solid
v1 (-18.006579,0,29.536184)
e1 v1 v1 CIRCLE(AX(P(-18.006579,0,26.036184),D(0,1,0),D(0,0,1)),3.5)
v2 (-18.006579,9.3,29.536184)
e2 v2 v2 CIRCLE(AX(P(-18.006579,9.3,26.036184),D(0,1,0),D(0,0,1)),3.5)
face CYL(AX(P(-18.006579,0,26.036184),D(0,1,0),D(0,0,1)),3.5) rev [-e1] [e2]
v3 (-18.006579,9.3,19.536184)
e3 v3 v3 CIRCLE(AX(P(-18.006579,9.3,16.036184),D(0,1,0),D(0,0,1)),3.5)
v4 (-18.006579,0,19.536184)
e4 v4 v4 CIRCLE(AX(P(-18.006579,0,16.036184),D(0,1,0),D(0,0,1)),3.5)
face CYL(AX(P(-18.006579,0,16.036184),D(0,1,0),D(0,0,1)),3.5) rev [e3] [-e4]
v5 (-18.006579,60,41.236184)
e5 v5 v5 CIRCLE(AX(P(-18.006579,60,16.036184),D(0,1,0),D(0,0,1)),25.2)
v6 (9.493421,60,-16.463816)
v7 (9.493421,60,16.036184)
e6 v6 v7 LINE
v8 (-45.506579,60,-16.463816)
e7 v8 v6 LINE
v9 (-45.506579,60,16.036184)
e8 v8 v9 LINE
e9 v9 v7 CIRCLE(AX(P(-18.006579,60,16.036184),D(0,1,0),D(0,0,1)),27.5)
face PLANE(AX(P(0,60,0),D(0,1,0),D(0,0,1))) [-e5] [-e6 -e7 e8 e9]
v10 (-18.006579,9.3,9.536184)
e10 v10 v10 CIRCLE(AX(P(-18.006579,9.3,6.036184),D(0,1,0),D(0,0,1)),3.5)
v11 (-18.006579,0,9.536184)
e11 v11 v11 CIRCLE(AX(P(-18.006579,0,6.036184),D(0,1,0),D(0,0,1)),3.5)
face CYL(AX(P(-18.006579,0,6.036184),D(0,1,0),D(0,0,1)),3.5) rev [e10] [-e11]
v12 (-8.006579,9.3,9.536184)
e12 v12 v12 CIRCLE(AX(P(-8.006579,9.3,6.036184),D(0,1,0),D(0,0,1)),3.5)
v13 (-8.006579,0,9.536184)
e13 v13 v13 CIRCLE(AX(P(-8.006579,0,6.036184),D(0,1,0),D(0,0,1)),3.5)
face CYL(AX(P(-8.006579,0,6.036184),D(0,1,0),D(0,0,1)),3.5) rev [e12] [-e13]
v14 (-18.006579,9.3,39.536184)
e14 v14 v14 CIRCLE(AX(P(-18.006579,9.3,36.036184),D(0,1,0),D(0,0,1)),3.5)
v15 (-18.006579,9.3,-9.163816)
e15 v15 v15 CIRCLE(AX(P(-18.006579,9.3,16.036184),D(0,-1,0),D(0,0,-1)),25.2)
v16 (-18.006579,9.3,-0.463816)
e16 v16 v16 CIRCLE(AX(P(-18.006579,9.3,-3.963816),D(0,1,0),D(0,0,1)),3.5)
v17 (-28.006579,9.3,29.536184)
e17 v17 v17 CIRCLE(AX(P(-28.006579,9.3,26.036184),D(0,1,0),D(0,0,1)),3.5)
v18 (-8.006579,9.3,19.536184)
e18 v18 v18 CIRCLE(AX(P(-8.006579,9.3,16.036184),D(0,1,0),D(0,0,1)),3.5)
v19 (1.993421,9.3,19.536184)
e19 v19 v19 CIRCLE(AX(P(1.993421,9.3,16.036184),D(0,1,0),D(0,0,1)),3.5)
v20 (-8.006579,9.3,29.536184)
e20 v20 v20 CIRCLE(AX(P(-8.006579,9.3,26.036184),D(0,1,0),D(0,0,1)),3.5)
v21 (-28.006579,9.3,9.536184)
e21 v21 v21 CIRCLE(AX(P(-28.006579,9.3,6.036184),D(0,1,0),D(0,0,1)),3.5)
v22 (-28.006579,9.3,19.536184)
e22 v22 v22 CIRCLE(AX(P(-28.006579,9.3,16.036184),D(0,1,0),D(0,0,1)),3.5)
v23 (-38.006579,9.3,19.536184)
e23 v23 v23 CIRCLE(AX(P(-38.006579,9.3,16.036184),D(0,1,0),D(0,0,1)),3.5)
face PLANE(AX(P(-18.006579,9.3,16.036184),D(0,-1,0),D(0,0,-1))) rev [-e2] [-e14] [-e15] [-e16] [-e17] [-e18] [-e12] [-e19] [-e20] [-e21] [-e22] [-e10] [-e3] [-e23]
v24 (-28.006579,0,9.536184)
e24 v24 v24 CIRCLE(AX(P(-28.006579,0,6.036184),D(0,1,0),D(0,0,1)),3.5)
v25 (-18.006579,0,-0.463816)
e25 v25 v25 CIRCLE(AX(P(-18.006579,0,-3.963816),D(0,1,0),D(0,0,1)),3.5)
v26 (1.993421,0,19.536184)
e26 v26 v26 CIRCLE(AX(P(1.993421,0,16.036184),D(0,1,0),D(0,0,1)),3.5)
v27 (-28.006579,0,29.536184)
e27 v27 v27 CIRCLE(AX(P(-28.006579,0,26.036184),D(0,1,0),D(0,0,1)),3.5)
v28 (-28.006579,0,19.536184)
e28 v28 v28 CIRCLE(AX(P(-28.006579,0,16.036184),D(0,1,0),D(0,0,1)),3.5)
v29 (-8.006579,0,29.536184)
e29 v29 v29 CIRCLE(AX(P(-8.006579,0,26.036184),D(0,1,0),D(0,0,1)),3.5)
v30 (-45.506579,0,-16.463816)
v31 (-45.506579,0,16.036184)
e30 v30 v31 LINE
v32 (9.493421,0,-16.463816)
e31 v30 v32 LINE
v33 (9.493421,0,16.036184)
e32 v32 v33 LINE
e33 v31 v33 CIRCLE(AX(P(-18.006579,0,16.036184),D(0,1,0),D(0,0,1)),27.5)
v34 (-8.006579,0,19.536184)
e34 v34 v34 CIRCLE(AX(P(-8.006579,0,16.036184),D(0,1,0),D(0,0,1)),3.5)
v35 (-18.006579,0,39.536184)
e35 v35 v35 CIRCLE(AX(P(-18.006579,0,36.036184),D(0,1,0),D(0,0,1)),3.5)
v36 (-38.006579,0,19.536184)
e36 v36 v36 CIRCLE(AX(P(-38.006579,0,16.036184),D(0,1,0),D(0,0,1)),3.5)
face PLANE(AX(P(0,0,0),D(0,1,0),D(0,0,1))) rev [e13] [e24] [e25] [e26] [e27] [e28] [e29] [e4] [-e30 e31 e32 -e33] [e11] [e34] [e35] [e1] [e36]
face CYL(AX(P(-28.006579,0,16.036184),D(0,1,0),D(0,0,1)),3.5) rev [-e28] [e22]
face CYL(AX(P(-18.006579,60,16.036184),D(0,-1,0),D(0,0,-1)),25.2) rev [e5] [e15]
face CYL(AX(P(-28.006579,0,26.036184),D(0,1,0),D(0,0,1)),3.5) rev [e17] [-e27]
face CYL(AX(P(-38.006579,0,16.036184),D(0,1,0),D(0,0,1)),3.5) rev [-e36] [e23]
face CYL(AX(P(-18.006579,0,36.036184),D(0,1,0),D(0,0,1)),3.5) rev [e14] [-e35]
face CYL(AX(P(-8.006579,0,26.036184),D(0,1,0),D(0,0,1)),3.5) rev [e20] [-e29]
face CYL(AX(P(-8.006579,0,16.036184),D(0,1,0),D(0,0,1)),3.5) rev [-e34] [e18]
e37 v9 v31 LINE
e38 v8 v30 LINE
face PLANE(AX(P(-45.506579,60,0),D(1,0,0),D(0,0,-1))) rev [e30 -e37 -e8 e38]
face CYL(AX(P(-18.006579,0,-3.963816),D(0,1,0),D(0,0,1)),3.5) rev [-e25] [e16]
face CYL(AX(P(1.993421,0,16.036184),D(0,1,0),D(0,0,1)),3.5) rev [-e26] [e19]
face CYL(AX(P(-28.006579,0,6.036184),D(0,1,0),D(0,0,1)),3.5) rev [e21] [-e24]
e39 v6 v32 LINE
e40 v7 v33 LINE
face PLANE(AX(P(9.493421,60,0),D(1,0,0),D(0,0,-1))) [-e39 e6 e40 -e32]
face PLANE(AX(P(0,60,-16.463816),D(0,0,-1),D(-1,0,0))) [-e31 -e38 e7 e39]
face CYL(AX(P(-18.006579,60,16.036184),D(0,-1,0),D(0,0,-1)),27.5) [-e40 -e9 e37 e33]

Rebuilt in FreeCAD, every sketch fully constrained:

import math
import FreeCAD as App
import Part
import Sketcher

V = App.Vector

doc = App.newDocument("Part")
body = doc.addObject("PartDesign::Body", "Body")

sketch1 = body.newObject("Sketcher::SketchObject", "Sketch")
sketch1.AttachmentSupport = (doc.getObject("XZ_Plane"), [""])
sketch1.MapMode = "FlatFace"
sketch1.addGeometry(Part.LineSegment(V(9, -16, 0), V(-46, -16, 0)), False)
sketch1.addGeometry(Part.LineSegment(V(-46, -16, 0), V(-46, 16, 0)), False)
sketch1.addGeometry(Part.ArcOfCircle(Part.Circle(V(-18, 16, 0), V(0, 0, 1), 28), math.radians(0), math.radians(180)), False)
sketch1.addGeometry(Part.LineSegment(V(9, 16, 0), V(9, -16, 0)), False)
sketch1.addGeometry(Part.Circle(V(-18, 16, 0), V(0, 0, 1), 25), False)
sketch1.addConstraint(Sketcher.Constraint("Coincident", 0, 2, 1, 1))
sketch1.addConstraint(Sketcher.Constraint("Tangent", 1, 2, 2, 2))
sketch1.addConstraint(Sketcher.Constraint("Tangent", 2, 1, 3, 1))
sketch1.addConstraint(Sketcher.Constraint("Coincident", 3, 2, 0, 1))
sketch1.addConstraint(Sketcher.Constraint("Horizontal", 0))
sketch1.addConstraint(Sketcher.Constraint("Vertical", 1))
sketch1.addConstraint(Sketcher.Constraint("Vertical", 3))
sketch1.addConstraint(Sketcher.Constraint("Coincident", 4, 3, 2, 3))
sketch1.addConstraint(Sketcher.Constraint("Diameter", 4, 50.4))
sketch1.addConstraint(Sketcher.Constraint("Radius", 2, 27.5))
sketch1.addConstraint(Sketcher.Constraint("DistanceY", 1, 1, 1, 2, 32.5))
sketch1.addConstraint(Sketcher.Constraint("DistanceX", 2, 3, -1, 1, 18.006579))
sketch1.addConstraint(Sketcher.Constraint("DistanceY", -1, 1, 2, 3, 16.036184))
pad1 = body.newObject("PartDesign::Pad", "Pad")
pad1.Profile = sketch1
pad1.Length = 60
pad1.Reversed = True

sketch2 = body.newObject("Sketcher::SketchObject", "Sketch001")
sketch2.AttachmentSupport = (doc.getObject("XZ_Plane"), [""])
sketch2.MapMode = "FlatFace"
sketch2.addGeometry(Part.Circle(V(-18, 16, 0), V(0, 0, 1), 25), False)
sketch2.addConstraint(Sketcher.Constraint("Diameter", 0, 50.4))
sketch2.addConstraint(Sketcher.Constraint("DistanceX", 0, 3, -1, 1, 18.006579))
sketch2.addConstraint(Sketcher.Constraint("DistanceY", -1, 1, 0, 3, 16.036184))
pad2 = body.newObject("PartDesign::Pad", "Pad001")
pad2.Profile = sketch2
pad2.Length = 9.3
pad2.Reversed = True

sketch3 = body.newObject("Sketcher::SketchObject", "Sketch002")
sketch3.AttachmentSupport = (doc.getObject("XZ_Plane"), [""])
sketch3.MapMode = "FlatFace"
sketch3.AttachmentOffset = App.Placement(V(0, 0, -9.3), App.Rotation())
sketch3.addGeometry(Part.ArcOfCircle(Part.Circle(V(-18, -4, 0), V(0, 0, 1), 3.5), math.radians(90), math.radians(270)), False)
sketch3.addGeometry(Part.ArcOfCircle(Part.Circle(V(-18, -4, 0), V(0, 0, 1), 3.5), math.radians(0), math.radians(90)), False)
sketch3.addGeometry(Part.ArcOfCircle(Part.Circle(V(-18, -4, 0), V(0, 0, 1), 3.5), math.radians(-90), math.radians(0)), False)
sketch3.addGeometry(Part.ArcOfCircle(Part.Circle(V(-18, 6, 0), V(0, 0, 1), 3.5), math.radians(90), math.radians(270)), False)
sketch3.addGeometry(Part.ArcOfCircle(Part.Circle(V(-18, 6, 0), V(0, 0, 1), 3.5), math.radians(0), math.radians(90)), False)
sketch3.addGeometry(Part.ArcOfCircle(Part.Circle(V(-18, 6, 0), V(0, 0, 1), 3.5), math.radians(-90), math.radians(0)), False)
sketch3.addGeometry(Part.Circle(V(-28, 6, 0), V(0, 0, 1), 3.5), False)
sketch3.addGeometry(Part.Circle(V(-8, 6, 0), V(0, 0, 1), 3.5), False)
sketch3.addGeometry(Part.Circle(V(-8, 16, 0), V(0, 0, 1), 3.5), False)
sketch3.addGeometry(Part.Circle(V(2, 16, 0), V(0, 0, 1), 3.5), False)
sketch3.addGeometry(Part.ArcOfCircle(Part.Circle(V(-18, 16, 0), V(0, 0, 1), 3.5), math.radians(0), math.radians(90)), False)
sketch3.addGeometry(Part.ArcOfCircle(Part.Circle(V(-18, 16, 0), V(0, 0, 1), 3.5), math.radians(-90), math.radians(0)), False)
sketch3.addGeometry(Part.ArcOfCircle(Part.Circle(V(-18, 16, 0), V(0, 0, 1), 3.5), math.radians(180), math.radians(270)), False)
sketch3.addGeometry(Part.ArcOfCircle(Part.Circle(V(-18, 16, 0), V(0, 0, 1), 3.5), math.radians(90), math.radians(180)), False)
sketch3.addGeometry(Part.Circle(V(-38, 16, 0), V(0, 0, 1), 3.5), False)
sketch3.addGeometry(Part.Circle(V(-28, 26, 0), V(0, 0, 1), 3.5), False)
sketch3.addGeometry(Part.ArcOfCircle(Part.Circle(V(-18, 26, 0), V(0, 0, 1), 3.5), math.radians(90), math.radians(270)), False)
sketch3.addGeometry(Part.ArcOfCircle(Part.Circle(V(-18, 26, 0), V(0, 0, 1), 3.5), math.radians(0), math.radians(90)), False)
sketch3.addGeometry(Part.ArcOfCircle(Part.Circle(V(-18, 26, 0), V(0, 0, 1), 3.5), math.radians(-90), math.radians(0)), False)
sketch3.addGeometry(Part.Circle(V(-8, 26, 0), V(0, 0, 1), 3.5), False)
sketch3.addGeometry(Part.ArcOfCircle(Part.Circle(V(-18, 36, 0), V(0, 0, 1), 3.5), math.radians(90), math.radians(270)), False)
sketch3.addGeometry(Part.ArcOfCircle(Part.Circle(V(-18, 36, 0), V(0, 0, 1), 3.5), math.radians(0), math.radians(90)), False)
sketch3.addGeometry(Part.ArcOfCircle(Part.Circle(V(-18, 36, 0), V(0, 0, 1), 3.5), math.radians(-90), math.radians(0)), False)
sketch3.addGeometry(Part.Circle(V(-28, 16, 0), V(0, 0, 1), 3.5), False)
sketch3.addConstraint(Sketcher.Constraint("Tangent", 0, 1, 1, 2))
sketch3.addConstraint(Sketcher.Constraint("Tangent", 1, 1, 2, 2))
sketch3.addConstraint(Sketcher.Constraint("Tangent", 2, 1, 0, 2))
sketch3.addConstraint(Sketcher.Constraint("Tangent", 3, 1, 4, 2))
sketch3.addConstraint(Sketcher.Constraint("Tangent", 4, 1, 5, 2))
sketch3.addConstraint(Sketcher.Constraint("Tangent", 5, 1, 3, 2))
sketch3.addConstraint(Sketcher.Constraint("Tangent", 10, 1, 11, 2))
sketch3.addConstraint(Sketcher.Constraint("Tangent", 11, 1, 12, 2))
sketch3.addConstraint(Sketcher.Constraint("Tangent", 12, 1, 13, 2))
sketch3.addConstraint(Sketcher.Constraint("Tangent", 13, 1, 10, 2))
sketch3.addConstraint(Sketcher.Constraint("Tangent", 16, 1, 17, 2))
sketch3.addConstraint(Sketcher.Constraint("Tangent", 17, 1, 18, 2))
sketch3.addConstraint(Sketcher.Constraint("Tangent", 18, 1, 16, 2))
sketch3.addConstraint(Sketcher.Constraint("Tangent", 20, 1, 21, 2))
sketch3.addConstraint(Sketcher.Constraint("Tangent", 21, 1, 22, 2))
sketch3.addConstraint(Sketcher.Constraint("Tangent", 22, 1, 20, 2))
sketch3.addConstraint(Sketcher.Constraint("Equal", 2, 3))
sketch3.addConstraint(Sketcher.Constraint("Equal", 5, 6))
sketch3.addConstraint(Sketcher.Constraint("Equal", 6, 7))
sketch3.addConstraint(Sketcher.Constraint("Equal", 7, 8))
sketch3.addConstraint(Sketcher.Constraint("Equal", 8, 9))
sketch3.addConstraint(Sketcher.Constraint("Equal", 9, 10))
sketch3.addConstraint(Sketcher.Constraint("Equal", 10, 11))
sketch3.addConstraint(Sketcher.Constraint("Equal", 13, 14))
sketch3.addConstraint(Sketcher.Constraint("Equal", 14, 15))
sketch3.addConstraint(Sketcher.Constraint("Equal", 15, 16))
sketch3.addConstraint(Sketcher.Constraint("Equal", 18, 19))
sketch3.addConstraint(Sketcher.Constraint("Equal", 19, 20))
sketch3.addConstraint(Sketcher.Constraint("Equal", 22, 23))
sketch3.addConstraint(Sketcher.Constraint("Horizontal", 5, 3, 6, 3))
sketch3.addConstraint(Sketcher.Constraint("Horizontal", 6, 3, 7, 3))
sketch3.addConstraint(Sketcher.Constraint("Horizontal", 8, 3, 9, 3))
sketch3.addConstraint(Sketcher.Constraint("Horizontal", 9, 3, 10, 3))
sketch3.addConstraint(Sketcher.Constraint("Horizontal", 13, 3, 14, 3))
sketch3.addConstraint(Sketcher.Constraint("Horizontal", 15, 3, 16, 3))
sketch3.addConstraint(Sketcher.Constraint("Horizontal", 18, 3, 19, 3))
sketch3.addConstraint(Sketcher.Constraint("Horizontal", 14, 3, 23, 3))
sketch3.addConstraint(Sketcher.Constraint("Horizontal", 2, 3, 1, 1))
sketch3.addConstraint(Sketcher.Constraint("Horizontal", 7, 3, 4, 1))
sketch3.addConstraint(Sketcher.Constraint("Horizontal", 23, 3, 10, 1))
sketch3.addConstraint(Sketcher.Constraint("Horizontal", 10, 1, 12, 1))
sketch3.addConstraint(Sketcher.Constraint("Horizontal", 19, 3, 17, 1))
sketch3.addConstraint(Sketcher.Constraint("Horizontal", 22, 3, 21, 1))
sketch3.addConstraint(Sketcher.Constraint("Vertical", 2, 3, 3, 3))
sketch3.addConstraint(Sketcher.Constraint("Vertical", 7, 3, 8, 3))
sketch3.addConstraint(Sketcher.Constraint("Vertical", 5, 3, 10, 3))
sketch3.addConstraint(Sketcher.Constraint("Vertical", 6, 3, 15, 3))
sketch3.addConstraint(Sketcher.Constraint("Vertical", 13, 3, 16, 3))
sketch3.addConstraint(Sketcher.Constraint("Vertical", 8, 3, 19, 3))
sketch3.addConstraint(Sketcher.Constraint("Vertical", 18, 3, 20, 3))
sketch3.addConstraint(Sketcher.Constraint("Vertical", 15, 3, 23, 3))
sketch3.addConstraint(Sketcher.Constraint("Vertical", 22, 3, 0, 1))
sketch3.addConstraint(Sketcher.Constraint("Vertical", 0, 1, 2, 1))
sketch3.addConstraint(Sketcher.Constraint("Vertical", 2, 1, 3, 1))
sketch3.addConstraint(Sketcher.Constraint("Vertical", 3, 1, 5, 1))
sketch3.addConstraint(Sketcher.Constraint("Vertical", 5, 1, 11, 1))
sketch3.addConstraint(Sketcher.Constraint("Vertical", 11, 1, 13, 1))
sketch3.addConstraint(Sketcher.Constraint("Vertical", 13, 1, 16, 1))
sketch3.addConstraint(Sketcher.Constraint("Vertical", 16, 1, 18, 1))
sketch3.addConstraint(Sketcher.Constraint("Vertical", 18, 1, 20, 1))
sketch3.addConstraint(Sketcher.Constraint("Vertical", 20, 1, 22, 1))
sketch3.addConstraint(Sketcher.Constraint("Diameter", 6, 7.0))
sketch3.addConstraint(Sketcher.Constraint("DistanceY", 0, 3, 3, 3, 10.0))
sketch3.addConstraint(Sketcher.Constraint("DistanceX", 6, 3, 4, 3, 10.0))
sketch3.addConstraint(Sketcher.Constraint("DistanceX", 5, 3, 7, 3, 10.0))
sketch3.addConstraint(Sketcher.Constraint("DistanceY", 7, 3, 8, 3, 10.0))
sketch3.addConstraint(Sketcher.Constraint("DistanceX", 8, 3, 9, 3, 10.0))
sketch3.addConstraint(Sketcher.Constraint("DistanceX", 14, 3, 6, 3, 10.0))
sketch3.addConstraint(Sketcher.Constraint("DistanceY", 13, 3, 15, 3, 10.0))
sketch3.addConstraint(Sketcher.Constraint("DistanceY", 16, 3, 20, 3, 10.0))
sketch3.addConstraint(Sketcher.Constraint("DistanceX", 0, 3, -1, 1, 18.006579))
sketch3.addConstraint(Sketcher.Constraint("DistanceY", 0, 3, -1, 1, 3.963816))
pocket1 = body.newObject("PartDesign::Pocket", "Pocket")
pocket1.Profile = sketch3
pocket1.Length = 9.3
pocket1.Reversed = True

doc.recompute()
